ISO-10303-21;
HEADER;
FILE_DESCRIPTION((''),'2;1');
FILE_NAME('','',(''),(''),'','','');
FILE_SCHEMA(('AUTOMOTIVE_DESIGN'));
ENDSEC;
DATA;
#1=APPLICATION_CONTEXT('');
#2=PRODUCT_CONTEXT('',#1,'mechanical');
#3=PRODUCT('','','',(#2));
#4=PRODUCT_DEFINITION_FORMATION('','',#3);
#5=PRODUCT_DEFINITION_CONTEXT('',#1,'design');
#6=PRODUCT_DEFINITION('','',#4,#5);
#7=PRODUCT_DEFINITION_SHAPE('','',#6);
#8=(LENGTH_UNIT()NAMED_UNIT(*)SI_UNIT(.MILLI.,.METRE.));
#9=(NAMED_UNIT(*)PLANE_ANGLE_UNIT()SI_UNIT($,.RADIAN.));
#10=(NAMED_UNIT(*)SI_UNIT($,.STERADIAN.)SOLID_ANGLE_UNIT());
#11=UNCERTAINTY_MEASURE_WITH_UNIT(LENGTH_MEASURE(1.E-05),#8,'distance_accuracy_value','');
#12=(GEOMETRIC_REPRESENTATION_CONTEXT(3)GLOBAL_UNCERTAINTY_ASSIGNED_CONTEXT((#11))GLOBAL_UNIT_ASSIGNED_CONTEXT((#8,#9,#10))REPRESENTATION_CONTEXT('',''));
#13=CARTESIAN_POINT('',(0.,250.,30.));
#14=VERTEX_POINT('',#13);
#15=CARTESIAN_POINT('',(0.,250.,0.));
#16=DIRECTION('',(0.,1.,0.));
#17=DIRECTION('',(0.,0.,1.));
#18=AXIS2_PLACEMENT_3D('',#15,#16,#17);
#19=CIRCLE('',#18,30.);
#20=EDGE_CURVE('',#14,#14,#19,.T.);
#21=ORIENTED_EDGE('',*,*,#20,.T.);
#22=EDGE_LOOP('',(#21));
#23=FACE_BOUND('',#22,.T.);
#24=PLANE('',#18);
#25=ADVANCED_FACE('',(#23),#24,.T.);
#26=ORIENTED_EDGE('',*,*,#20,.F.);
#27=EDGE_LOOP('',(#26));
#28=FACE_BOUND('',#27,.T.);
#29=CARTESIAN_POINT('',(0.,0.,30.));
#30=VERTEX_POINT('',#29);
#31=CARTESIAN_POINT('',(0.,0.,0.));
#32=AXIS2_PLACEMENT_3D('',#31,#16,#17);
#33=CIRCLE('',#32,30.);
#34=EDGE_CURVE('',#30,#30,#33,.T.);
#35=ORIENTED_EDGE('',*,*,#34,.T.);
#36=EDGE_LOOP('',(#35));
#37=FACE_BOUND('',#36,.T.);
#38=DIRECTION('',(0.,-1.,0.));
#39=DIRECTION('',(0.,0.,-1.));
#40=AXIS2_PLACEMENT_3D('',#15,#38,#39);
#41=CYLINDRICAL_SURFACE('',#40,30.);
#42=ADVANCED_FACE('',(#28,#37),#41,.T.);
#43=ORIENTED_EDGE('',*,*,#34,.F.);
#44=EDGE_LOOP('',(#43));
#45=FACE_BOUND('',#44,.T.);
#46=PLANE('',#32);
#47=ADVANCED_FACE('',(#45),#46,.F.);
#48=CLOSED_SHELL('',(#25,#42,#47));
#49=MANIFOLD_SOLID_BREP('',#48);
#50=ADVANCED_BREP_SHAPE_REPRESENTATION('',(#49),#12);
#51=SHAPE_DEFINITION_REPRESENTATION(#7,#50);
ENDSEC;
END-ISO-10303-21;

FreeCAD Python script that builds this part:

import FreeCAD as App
import Part
import Sketcher

V = App.Vector

doc = App.newDocument("Part")
body = doc.addObject("PartDesign::Body", "Body")

# Sketch on XZ plane
sketch1 = doc.addObject("Sketcher::SketchObject", "Sketch")
body.addObject(sketch1)
sketch1.AttachmentSupport = (doc.XZ_Plane, [""])
sketch1.MapMode = "FlatFace"
sketch1.addGeometry(Part.Circle(V(0, 0, 0), V(0, 0, 1), 30), False)
sketch1.addConstraint(Sketcher.Constraint("Coincident", 0, 3, -1, 1))
sketch1.addConstraint(Sketcher.Constraint("Diameter", 0, 60.0))
pad1 = doc.addObject("PartDesign::Pad", "Pad")
body.addObject(pad1)
pad1.Profile = sketch1
pad1.Length = 250
pad1.Reversed = True

doc.recompute()
